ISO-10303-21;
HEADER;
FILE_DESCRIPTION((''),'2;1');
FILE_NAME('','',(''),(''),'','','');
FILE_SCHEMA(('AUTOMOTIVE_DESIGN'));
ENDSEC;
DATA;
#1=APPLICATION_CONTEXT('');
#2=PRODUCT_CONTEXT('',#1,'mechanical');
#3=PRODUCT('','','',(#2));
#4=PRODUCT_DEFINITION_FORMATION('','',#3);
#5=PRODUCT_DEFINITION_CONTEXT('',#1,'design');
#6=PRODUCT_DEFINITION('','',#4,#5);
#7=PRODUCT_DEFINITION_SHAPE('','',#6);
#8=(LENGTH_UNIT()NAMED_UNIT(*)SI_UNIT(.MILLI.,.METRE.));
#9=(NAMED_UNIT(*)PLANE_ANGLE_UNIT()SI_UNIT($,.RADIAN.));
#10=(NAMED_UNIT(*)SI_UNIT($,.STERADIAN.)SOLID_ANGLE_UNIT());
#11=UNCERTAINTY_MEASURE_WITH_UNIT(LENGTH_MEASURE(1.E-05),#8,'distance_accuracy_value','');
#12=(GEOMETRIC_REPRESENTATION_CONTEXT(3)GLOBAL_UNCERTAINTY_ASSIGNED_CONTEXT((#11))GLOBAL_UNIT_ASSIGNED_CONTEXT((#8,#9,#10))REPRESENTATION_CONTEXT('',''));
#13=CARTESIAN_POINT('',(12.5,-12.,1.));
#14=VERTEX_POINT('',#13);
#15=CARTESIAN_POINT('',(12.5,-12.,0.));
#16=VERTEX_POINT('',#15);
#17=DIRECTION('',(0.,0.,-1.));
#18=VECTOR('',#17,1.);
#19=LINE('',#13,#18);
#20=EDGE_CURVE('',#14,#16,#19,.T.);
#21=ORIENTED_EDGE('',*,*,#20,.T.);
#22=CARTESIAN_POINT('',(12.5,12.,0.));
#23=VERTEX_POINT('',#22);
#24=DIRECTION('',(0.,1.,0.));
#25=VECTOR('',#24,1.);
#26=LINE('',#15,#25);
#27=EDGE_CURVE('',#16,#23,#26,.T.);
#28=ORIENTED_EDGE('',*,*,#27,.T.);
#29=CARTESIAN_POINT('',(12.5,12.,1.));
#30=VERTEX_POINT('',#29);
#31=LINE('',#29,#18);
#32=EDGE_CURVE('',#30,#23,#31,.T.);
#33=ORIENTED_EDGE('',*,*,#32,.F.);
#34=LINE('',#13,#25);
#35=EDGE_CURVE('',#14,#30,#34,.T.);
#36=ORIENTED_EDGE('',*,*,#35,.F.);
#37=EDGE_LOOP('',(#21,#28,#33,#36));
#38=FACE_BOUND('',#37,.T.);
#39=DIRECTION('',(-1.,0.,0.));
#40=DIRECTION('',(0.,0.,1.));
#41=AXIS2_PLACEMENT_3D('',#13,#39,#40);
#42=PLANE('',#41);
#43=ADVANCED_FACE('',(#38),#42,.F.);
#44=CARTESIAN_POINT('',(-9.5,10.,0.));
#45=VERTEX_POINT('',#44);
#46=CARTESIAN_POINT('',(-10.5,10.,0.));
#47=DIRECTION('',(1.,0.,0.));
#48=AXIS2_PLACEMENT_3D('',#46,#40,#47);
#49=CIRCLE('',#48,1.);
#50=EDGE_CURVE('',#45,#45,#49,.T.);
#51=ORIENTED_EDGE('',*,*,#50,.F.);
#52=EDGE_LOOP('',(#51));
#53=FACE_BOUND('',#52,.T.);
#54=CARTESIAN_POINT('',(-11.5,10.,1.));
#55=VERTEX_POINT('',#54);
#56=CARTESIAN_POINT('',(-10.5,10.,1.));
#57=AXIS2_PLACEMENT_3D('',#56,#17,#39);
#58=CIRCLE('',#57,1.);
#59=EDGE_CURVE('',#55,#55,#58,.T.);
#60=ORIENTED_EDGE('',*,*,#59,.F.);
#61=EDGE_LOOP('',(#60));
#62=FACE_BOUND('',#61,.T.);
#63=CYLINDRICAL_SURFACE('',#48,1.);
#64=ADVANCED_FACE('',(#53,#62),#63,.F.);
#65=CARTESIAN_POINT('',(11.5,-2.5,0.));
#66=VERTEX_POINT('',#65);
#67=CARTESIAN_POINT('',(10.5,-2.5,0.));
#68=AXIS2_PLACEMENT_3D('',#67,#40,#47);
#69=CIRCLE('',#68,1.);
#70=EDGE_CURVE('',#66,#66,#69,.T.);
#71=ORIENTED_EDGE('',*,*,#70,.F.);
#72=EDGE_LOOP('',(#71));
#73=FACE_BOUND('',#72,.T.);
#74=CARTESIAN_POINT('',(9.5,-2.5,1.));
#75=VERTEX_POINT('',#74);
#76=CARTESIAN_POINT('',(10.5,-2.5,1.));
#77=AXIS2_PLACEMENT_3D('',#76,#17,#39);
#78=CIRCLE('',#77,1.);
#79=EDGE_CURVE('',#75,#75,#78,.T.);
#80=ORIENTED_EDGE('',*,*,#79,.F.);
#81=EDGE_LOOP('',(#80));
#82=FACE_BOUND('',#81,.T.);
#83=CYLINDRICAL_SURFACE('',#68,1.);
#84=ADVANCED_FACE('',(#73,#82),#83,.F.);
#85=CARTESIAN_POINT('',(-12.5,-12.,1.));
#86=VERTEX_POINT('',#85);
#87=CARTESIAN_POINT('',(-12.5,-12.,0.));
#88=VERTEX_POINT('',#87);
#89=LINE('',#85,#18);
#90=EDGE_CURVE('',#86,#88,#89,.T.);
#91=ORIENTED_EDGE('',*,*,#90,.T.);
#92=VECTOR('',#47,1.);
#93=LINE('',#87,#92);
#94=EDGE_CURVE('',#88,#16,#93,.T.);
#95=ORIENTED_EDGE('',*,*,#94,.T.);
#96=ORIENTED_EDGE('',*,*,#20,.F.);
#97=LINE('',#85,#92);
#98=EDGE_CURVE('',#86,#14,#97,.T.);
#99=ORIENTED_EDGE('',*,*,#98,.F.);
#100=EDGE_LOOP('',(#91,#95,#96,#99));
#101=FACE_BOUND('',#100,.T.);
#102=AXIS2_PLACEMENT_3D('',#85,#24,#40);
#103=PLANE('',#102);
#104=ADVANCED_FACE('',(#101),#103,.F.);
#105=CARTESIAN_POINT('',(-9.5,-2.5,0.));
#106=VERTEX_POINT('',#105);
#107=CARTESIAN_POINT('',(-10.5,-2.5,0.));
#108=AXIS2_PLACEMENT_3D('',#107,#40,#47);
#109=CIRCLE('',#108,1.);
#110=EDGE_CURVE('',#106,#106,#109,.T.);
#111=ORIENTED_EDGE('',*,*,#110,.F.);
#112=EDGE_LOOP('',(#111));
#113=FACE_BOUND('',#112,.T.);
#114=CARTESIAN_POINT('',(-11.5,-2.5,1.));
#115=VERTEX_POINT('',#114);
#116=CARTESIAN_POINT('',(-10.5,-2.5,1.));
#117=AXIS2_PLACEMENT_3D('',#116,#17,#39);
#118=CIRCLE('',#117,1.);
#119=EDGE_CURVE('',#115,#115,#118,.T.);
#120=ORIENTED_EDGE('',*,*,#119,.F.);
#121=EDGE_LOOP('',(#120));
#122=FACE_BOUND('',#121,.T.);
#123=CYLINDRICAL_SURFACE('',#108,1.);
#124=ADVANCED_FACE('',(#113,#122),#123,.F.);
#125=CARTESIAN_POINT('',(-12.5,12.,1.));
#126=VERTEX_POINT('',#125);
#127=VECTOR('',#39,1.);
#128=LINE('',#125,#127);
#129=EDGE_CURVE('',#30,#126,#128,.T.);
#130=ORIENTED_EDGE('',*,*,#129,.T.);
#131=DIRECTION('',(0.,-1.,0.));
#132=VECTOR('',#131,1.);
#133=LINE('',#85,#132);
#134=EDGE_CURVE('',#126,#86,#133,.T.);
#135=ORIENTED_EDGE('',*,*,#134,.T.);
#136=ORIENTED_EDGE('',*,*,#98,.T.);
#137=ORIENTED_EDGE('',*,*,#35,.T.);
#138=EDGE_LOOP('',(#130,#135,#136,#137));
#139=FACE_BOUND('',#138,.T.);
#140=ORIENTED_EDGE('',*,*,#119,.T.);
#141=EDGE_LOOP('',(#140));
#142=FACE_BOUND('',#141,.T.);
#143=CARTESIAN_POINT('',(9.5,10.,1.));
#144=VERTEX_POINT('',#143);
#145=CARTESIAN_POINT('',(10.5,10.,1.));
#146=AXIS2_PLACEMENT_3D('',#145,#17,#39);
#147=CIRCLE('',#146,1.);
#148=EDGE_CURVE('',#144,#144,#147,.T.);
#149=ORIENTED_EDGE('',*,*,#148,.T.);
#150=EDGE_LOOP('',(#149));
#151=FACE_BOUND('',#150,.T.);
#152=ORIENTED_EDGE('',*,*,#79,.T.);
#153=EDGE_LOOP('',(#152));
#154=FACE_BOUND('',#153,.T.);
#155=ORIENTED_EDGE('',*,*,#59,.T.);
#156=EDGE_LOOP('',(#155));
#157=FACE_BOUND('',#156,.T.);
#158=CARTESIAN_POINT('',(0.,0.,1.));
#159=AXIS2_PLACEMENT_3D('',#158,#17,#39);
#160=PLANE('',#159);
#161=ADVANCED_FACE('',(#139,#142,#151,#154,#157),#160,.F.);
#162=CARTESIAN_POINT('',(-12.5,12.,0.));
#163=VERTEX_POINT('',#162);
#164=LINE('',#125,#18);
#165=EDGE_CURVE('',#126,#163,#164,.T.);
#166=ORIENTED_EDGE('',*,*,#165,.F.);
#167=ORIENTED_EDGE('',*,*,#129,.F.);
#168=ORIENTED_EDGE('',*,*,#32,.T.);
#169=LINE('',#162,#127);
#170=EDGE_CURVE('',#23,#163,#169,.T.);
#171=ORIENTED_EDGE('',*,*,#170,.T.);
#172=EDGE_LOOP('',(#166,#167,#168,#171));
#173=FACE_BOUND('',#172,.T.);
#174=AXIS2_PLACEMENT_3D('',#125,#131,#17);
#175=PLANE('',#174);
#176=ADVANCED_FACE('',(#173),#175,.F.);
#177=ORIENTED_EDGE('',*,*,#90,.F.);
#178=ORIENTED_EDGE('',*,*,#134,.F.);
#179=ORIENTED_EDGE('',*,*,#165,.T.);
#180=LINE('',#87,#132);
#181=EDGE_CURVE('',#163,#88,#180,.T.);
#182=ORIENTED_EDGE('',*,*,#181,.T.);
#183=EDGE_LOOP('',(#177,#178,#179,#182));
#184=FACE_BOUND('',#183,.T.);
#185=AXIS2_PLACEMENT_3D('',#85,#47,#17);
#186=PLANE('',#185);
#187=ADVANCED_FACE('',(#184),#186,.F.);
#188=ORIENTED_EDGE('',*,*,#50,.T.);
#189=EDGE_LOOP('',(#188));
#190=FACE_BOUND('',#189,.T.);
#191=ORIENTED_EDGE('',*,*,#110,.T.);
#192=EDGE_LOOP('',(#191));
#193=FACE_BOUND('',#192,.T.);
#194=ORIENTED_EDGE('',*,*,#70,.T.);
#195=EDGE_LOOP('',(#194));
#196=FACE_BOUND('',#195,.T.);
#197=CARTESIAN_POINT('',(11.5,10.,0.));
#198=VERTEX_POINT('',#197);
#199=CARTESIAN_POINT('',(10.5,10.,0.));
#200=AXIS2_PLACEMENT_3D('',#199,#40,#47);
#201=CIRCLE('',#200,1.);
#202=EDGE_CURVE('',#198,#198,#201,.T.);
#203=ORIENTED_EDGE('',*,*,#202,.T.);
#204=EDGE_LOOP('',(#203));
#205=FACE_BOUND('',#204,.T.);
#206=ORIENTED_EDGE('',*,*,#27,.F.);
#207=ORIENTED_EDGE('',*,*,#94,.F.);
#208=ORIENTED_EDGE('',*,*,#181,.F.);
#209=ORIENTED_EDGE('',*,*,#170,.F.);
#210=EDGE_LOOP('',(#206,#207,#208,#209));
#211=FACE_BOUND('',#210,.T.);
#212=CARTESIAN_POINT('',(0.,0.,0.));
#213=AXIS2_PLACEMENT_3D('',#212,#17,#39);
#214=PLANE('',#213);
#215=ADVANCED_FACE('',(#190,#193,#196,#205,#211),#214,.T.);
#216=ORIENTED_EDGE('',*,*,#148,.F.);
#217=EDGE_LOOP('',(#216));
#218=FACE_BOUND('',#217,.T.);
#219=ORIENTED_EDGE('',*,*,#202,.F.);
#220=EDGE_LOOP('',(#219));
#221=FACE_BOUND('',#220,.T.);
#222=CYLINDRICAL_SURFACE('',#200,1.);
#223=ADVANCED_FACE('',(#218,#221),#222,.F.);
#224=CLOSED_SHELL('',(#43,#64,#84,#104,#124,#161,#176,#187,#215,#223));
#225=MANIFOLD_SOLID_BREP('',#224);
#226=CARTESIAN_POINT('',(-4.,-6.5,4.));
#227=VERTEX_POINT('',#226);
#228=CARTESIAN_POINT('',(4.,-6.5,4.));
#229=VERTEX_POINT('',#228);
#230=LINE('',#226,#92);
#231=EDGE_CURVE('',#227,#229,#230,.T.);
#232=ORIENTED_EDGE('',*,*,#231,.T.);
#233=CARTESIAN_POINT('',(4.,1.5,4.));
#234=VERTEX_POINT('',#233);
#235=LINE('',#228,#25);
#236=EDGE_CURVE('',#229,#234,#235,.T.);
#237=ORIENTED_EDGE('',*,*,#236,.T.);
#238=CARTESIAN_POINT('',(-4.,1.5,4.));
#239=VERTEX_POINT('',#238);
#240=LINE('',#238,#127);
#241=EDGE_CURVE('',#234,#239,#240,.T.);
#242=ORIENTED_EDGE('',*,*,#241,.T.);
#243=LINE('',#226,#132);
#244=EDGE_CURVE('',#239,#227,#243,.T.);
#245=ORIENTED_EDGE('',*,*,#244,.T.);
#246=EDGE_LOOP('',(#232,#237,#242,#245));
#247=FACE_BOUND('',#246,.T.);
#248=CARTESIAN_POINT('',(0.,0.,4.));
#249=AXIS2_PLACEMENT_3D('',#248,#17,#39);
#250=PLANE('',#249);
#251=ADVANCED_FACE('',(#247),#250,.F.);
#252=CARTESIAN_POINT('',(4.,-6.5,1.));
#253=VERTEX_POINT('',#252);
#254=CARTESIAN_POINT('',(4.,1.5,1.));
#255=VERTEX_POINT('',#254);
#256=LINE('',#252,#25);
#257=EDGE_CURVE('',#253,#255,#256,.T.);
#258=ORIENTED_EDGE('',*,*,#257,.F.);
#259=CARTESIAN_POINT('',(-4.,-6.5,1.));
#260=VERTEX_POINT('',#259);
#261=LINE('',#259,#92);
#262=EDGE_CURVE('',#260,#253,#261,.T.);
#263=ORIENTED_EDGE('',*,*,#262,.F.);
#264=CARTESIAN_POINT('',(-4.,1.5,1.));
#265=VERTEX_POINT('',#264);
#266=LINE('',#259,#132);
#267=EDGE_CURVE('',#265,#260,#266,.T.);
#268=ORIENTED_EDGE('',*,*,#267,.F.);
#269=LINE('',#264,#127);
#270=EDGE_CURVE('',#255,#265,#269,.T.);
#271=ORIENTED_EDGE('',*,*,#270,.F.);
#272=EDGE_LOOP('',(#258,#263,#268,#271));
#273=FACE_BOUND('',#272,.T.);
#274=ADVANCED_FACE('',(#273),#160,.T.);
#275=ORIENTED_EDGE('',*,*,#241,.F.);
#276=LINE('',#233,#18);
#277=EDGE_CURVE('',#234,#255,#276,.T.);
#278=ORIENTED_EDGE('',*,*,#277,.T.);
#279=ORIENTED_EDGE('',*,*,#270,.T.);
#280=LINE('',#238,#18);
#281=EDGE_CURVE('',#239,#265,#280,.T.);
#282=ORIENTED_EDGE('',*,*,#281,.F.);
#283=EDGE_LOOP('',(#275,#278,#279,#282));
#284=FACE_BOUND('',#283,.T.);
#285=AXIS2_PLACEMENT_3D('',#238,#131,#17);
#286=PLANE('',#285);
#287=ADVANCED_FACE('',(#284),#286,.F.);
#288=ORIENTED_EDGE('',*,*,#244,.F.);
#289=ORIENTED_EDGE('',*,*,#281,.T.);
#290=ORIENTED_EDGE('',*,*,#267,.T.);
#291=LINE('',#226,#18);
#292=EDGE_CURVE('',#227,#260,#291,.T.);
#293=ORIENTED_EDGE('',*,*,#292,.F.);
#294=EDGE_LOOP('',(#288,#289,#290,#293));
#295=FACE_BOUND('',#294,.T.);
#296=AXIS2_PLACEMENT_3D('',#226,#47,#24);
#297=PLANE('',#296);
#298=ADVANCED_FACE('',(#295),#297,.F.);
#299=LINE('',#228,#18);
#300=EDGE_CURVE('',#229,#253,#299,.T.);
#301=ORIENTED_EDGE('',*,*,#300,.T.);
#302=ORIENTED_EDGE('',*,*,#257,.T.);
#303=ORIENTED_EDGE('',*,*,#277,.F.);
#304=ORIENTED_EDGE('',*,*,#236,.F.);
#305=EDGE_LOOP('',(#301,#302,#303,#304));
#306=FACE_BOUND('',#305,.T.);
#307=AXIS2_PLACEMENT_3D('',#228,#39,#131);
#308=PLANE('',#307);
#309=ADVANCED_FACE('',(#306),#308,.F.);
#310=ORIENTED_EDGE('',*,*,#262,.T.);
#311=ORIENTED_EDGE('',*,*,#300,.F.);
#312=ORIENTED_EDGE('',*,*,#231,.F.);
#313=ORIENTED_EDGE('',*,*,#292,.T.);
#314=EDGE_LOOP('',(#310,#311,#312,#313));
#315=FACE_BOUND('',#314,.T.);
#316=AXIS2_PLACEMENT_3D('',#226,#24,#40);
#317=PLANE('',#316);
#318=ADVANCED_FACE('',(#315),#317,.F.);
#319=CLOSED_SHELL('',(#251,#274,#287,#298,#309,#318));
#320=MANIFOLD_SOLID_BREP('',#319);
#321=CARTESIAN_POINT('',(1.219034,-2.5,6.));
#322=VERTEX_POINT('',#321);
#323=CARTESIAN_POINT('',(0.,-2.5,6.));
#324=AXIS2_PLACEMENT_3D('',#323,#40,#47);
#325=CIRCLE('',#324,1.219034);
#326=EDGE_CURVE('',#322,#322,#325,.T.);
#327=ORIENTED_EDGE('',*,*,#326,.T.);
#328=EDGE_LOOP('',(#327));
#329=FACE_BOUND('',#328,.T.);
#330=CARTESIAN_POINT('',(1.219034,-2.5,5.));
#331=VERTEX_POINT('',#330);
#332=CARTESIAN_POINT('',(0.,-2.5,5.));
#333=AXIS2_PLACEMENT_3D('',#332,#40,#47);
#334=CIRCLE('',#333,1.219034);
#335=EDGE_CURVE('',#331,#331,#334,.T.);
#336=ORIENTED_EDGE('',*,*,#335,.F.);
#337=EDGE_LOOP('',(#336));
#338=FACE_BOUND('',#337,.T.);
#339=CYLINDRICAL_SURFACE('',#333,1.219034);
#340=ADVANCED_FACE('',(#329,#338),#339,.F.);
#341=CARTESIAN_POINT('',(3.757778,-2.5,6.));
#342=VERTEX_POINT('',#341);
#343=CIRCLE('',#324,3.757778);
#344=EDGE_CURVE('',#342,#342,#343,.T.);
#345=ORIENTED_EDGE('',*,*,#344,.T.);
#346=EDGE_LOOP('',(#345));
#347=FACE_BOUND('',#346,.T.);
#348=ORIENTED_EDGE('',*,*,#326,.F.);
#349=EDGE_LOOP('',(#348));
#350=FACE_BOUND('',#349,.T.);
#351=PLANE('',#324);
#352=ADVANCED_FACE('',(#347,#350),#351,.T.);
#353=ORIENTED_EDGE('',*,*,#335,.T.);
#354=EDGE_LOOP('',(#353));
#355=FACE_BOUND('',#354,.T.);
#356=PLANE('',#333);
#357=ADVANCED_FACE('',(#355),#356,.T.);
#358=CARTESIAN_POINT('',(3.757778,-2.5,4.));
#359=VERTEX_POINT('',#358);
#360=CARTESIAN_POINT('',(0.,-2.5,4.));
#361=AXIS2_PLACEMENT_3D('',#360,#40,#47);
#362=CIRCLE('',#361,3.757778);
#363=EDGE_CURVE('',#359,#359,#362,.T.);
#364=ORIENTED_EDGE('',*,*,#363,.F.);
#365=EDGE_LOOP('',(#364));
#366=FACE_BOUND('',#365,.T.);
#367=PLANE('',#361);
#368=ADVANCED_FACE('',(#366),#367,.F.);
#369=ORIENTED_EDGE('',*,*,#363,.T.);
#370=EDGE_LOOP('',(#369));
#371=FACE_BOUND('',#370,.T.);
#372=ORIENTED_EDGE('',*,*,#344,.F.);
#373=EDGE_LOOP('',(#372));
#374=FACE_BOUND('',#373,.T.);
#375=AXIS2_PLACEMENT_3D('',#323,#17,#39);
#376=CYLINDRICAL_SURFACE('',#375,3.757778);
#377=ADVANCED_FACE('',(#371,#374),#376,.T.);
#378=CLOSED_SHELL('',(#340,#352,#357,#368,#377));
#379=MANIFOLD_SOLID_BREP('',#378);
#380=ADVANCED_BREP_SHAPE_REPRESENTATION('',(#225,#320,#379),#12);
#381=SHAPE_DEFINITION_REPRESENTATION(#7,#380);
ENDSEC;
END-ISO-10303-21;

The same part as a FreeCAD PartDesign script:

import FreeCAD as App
import Part
import Sketcher
Q = App.Units.Quantity

doc = App.newDocument("Part")
body = doc.addObject("PartDesign::Body", "Body")

sketch1 = doc.addObject("Sketcher::SketchObject", "Sketch")
body.addObject(sketch1)
sketch1.AttachmentSupport = (doc.XY_Plane, [""])
sketch1.MapMode = "FlatFace"
sketch1.addGeometry(Part.LineSegment(App.Vector(-12, 12, 0), App.Vector(-12, -12, 0)), False)
sketch1.addGeometry(Part.LineSegment(App.Vector(-12, -12, 0), App.Vector(12, -12, 0)), False)
sketch1.addGeometry(Part.LineSegment(App.Vector(12, -12, 0), App.Vector(12, 12, 0)), False)
sketch1.addGeometry(Part.LineSegment(App.Vector(12, 12, 0), App.Vector(-12, 12, 0)), False)
sketch1.addConstraint(Sketcher.Constraint("Coincident", 0, 2, 1, 1))
sketch1.addConstraint(Sketcher.Constraint("Coincident", 1, 2, 2, 1))
sketch1.addConstraint(Sketcher.Constraint("Coincident", 2, 2, 3, 1))
sketch1.addConstraint(Sketcher.Constraint("Coincident", 3, 2, 0, 1))
sketch1.addConstraint(Sketcher.Constraint("Vertical", 0))
sketch1.addConstraint(Sketcher.Constraint("Horizontal", 1))
sketch1.addConstraint(Sketcher.Constraint("Vertical", 2))
sketch1.addConstraint(Sketcher.Constraint("Horizontal", 3))
sketch1.addConstraint(Sketcher.Constraint("Symmetric", 0, 2, 2, 2, -1, 1))
sketch1.addConstraint(Sketcher.Constraint("DistanceX", 1, 1, 1, 2, Q("25 mm")))
sketch1.addConstraint(Sketcher.Constraint("DistanceY", 0, 2, 0, 1, Q("24 mm")))
pad1 = doc.addObject("PartDesign::Pad", "Pad")
body.addObject(pad1)
pad1.Profile = sketch1
pad1.Length = 1

sketch2 = doc.addObject("Sketcher::SketchObject", "Sketch001")
body.addObject(sketch2)
sketch2.AttachmentSupport = (doc.XY_Plane, [""])
sketch2.MapMode = "FlatFace"
sketch2.AttachmentOffset = App.Placement(App.Vector(0, 0, 1), App.Rotation())
sketch2.addGeometry(Part.Circle(App.Vector(-10.5, -2.5, 0), App.Vector(0, 0, 1), 1), False)
sketch2.addGeometry(Part.Circle(App.Vector(-10.5, 10, 0), App.Vector(0, 0, 1), 1), False)
sketch2.addGeometry(Part.Circle(App.Vector(10.5, 10, 0), App.Vector(0, 0, 1), 1), False)
sketch2.addGeometry(Part.Circle(App.Vector(10.5, -2.5, 0), App.Vector(0, 0, 1), 1), False)
sketch2.addConstraint(Sketcher.Constraint("Equal", 0, 1))
sketch2.addConstraint(Sketcher.Constraint("Equal", 1, 2))
sketch2.addConstraint(Sketcher.Constraint("Equal", 2, 3))
sketch2.addConstraint(Sketcher.Constraint("Symmetric", 1, 3, 2, 3, -2))
sketch2.addConstraint(Sketcher.Constraint("Symmetric", 0, 3, 3, 3, -2))
sketch2.addConstraint(Sketcher.Constraint("Vertical", 0, 3, 1, 3))
sketch2.addConstraint(Sketcher.Constraint("Diameter", 0, Q("2 mm")))
sketch2.addConstraint(Sketcher.Constraint("DistanceY", -1, 1, 1, 3, Q("10 mm")))
sketch2.addConstraint(Sketcher.Constraint("DistanceX", 1, 3, 2, 3, Q("21 mm")))
sketch2.addConstraint(Sketcher.Constraint("DistanceY", 0, 3, -1, 1, Q("2.5 mm")))
pocket1 = doc.addObject("PartDesign::Pocket", "Pocket")
body.addObject(pocket1)
pocket1.Profile = sketch2
pocket1.Type = "ThroughAll"
pocket1.Midplane = True
body2 = doc.addObject("PartDesign::Body", "Body001")

sketch3 = doc.addObject("Sketcher::SketchObject", "Sketch002")
body2.addObject(sketch3)
sketch3.AttachmentSupport = (doc.getObject("XY_Plane001"), [""])
sketch3.MapMode = "FlatFace"
sketch3.AttachmentOffset = App.Placement(App.Vector(0, 0, 1), App.Rotation())
sketch3.addGeometry(Part.LineSegment(App.Vector(-4, 2, 0), App.Vector(-4, -6, 0)), False)
sketch3.addGeometry(Part.LineSegment(App.Vector(-4, -6, 0), App.Vector(4, -6, 0)), False)
sketch3.addGeometry(Part.LineSegment(App.Vector(4, -6, 0), App.Vector(4, 2, 0)), False)
sketch3.addGeometry(Part.LineSegment(App.Vector(4, 2, 0), App.Vector(-4, 2, 0)), False)
sketch3.addConstraint(Sketcher.Constraint("Coincident", 0, 2, 1, 1))
sketch3.addConstraint(Sketcher.Constraint("Coincident", 1, 2, 2, 1))
sketch3.addConstraint(Sketcher.Constraint("Coincident", 2, 2, 3, 1))
sketch3.addConstraint(Sketcher.Constraint("Coincident", 3, 2, 0, 1))
sketch3.addConstraint(Sketcher.Constraint("Vertical", 0))
sketch3.addConstraint(Sketcher.Constraint("Horizontal", 1))
sketch3.addConstraint(Sketcher.Constraint("Vertical", 2))
sketch3.addConstraint(Sketcher.Constraint("Horizontal", 3))
sketch3.addConstraint(Sketcher.Constraint("Equal", 3, 0))
sketch3.addConstraint(Sketcher.Constraint("DistanceX", 1, 1, 1, 2, Q("8 mm")))
sketch3.addConstraint(Sketcher.Constraint("DistanceX", 0, 2, -1, 1, Q("4 mm")))
sketch3.addConstraint(Sketcher.Constraint("DistanceY", 0, 2, -1, 1, Q("6.5 mm")))
pad2 = doc.addObject("PartDesign::Pad", "Pad001")
body2.addObject(pad2)
pad2.Profile = sketch3
pad2.Length = 3
body3 = doc.addObject("PartDesign::Body", "Body002")

sketch4 = doc.addObject("Sketcher::SketchObject", "Sketch003")
body3.addObject(sketch4)
sketch4.AttachmentSupport = (doc.getObject("XY_Plane002"), [""])
sketch4.MapMode = "FlatFace"
sketch4.AttachmentOffset = App.Placement(App.Vector(0, 0, 4), App.Rotation())
sketch4.addGeometry(Part.Circle(App.Vector(0, -2.5, 0), App.Vector(0, 0, 1), 3.8), False)
sketch4.addConstraint(Sketcher.Constraint("PointOnObject", 0, 3, -2))
sketch4.addConstraint(Sketcher.Constraint("DistanceY", 0, 3, -1, 1, Q("2.5 mm")))
sketch4.addConstraint(Sketcher.Constraint("Diameter", 0, Q("7.515556 mm")))
pad3 = doc.addObject("PartDesign::Pad", "Pad002")
body3.addObject(pad3)
pad3.Profile = sketch4
pad3.Length = 2

sketch5 = doc.addObject("Sketcher::SketchObject", "Sketch004")
body3.addObject(sketch5)
sketch5.AttachmentSupport = (doc.getObject("XY_Plane002"), [""])
sketch5.MapMode = "FlatFace"
sketch5.AttachmentOffset = App.Placement(App.Vector(0, 0, 6), App.Rotation())
sketch5.addGeometry(Part.Circle(App.Vector(0, -2.5, 0), App.Vector(0, 0, 1), 1.2), False)
sketch5.addConstraint(Sketcher.Constraint("PointOnObject", 0, 3, -2))
sketch5.addConstraint(Sketcher.Constraint("DistanceY", 0, 3, -1, 1, Q("2.5 mm")))
sketch5.addConstraint(Sketcher.Constraint("Diameter", 0, Q("2.438067 mm")))
pocket2 = doc.addObject("PartDesign::Pocket", "Pocket001")
body3.addObject(pocket2)
pocket2.Profile = sketch5
pocket2.Length = 1

doc.recompute()
